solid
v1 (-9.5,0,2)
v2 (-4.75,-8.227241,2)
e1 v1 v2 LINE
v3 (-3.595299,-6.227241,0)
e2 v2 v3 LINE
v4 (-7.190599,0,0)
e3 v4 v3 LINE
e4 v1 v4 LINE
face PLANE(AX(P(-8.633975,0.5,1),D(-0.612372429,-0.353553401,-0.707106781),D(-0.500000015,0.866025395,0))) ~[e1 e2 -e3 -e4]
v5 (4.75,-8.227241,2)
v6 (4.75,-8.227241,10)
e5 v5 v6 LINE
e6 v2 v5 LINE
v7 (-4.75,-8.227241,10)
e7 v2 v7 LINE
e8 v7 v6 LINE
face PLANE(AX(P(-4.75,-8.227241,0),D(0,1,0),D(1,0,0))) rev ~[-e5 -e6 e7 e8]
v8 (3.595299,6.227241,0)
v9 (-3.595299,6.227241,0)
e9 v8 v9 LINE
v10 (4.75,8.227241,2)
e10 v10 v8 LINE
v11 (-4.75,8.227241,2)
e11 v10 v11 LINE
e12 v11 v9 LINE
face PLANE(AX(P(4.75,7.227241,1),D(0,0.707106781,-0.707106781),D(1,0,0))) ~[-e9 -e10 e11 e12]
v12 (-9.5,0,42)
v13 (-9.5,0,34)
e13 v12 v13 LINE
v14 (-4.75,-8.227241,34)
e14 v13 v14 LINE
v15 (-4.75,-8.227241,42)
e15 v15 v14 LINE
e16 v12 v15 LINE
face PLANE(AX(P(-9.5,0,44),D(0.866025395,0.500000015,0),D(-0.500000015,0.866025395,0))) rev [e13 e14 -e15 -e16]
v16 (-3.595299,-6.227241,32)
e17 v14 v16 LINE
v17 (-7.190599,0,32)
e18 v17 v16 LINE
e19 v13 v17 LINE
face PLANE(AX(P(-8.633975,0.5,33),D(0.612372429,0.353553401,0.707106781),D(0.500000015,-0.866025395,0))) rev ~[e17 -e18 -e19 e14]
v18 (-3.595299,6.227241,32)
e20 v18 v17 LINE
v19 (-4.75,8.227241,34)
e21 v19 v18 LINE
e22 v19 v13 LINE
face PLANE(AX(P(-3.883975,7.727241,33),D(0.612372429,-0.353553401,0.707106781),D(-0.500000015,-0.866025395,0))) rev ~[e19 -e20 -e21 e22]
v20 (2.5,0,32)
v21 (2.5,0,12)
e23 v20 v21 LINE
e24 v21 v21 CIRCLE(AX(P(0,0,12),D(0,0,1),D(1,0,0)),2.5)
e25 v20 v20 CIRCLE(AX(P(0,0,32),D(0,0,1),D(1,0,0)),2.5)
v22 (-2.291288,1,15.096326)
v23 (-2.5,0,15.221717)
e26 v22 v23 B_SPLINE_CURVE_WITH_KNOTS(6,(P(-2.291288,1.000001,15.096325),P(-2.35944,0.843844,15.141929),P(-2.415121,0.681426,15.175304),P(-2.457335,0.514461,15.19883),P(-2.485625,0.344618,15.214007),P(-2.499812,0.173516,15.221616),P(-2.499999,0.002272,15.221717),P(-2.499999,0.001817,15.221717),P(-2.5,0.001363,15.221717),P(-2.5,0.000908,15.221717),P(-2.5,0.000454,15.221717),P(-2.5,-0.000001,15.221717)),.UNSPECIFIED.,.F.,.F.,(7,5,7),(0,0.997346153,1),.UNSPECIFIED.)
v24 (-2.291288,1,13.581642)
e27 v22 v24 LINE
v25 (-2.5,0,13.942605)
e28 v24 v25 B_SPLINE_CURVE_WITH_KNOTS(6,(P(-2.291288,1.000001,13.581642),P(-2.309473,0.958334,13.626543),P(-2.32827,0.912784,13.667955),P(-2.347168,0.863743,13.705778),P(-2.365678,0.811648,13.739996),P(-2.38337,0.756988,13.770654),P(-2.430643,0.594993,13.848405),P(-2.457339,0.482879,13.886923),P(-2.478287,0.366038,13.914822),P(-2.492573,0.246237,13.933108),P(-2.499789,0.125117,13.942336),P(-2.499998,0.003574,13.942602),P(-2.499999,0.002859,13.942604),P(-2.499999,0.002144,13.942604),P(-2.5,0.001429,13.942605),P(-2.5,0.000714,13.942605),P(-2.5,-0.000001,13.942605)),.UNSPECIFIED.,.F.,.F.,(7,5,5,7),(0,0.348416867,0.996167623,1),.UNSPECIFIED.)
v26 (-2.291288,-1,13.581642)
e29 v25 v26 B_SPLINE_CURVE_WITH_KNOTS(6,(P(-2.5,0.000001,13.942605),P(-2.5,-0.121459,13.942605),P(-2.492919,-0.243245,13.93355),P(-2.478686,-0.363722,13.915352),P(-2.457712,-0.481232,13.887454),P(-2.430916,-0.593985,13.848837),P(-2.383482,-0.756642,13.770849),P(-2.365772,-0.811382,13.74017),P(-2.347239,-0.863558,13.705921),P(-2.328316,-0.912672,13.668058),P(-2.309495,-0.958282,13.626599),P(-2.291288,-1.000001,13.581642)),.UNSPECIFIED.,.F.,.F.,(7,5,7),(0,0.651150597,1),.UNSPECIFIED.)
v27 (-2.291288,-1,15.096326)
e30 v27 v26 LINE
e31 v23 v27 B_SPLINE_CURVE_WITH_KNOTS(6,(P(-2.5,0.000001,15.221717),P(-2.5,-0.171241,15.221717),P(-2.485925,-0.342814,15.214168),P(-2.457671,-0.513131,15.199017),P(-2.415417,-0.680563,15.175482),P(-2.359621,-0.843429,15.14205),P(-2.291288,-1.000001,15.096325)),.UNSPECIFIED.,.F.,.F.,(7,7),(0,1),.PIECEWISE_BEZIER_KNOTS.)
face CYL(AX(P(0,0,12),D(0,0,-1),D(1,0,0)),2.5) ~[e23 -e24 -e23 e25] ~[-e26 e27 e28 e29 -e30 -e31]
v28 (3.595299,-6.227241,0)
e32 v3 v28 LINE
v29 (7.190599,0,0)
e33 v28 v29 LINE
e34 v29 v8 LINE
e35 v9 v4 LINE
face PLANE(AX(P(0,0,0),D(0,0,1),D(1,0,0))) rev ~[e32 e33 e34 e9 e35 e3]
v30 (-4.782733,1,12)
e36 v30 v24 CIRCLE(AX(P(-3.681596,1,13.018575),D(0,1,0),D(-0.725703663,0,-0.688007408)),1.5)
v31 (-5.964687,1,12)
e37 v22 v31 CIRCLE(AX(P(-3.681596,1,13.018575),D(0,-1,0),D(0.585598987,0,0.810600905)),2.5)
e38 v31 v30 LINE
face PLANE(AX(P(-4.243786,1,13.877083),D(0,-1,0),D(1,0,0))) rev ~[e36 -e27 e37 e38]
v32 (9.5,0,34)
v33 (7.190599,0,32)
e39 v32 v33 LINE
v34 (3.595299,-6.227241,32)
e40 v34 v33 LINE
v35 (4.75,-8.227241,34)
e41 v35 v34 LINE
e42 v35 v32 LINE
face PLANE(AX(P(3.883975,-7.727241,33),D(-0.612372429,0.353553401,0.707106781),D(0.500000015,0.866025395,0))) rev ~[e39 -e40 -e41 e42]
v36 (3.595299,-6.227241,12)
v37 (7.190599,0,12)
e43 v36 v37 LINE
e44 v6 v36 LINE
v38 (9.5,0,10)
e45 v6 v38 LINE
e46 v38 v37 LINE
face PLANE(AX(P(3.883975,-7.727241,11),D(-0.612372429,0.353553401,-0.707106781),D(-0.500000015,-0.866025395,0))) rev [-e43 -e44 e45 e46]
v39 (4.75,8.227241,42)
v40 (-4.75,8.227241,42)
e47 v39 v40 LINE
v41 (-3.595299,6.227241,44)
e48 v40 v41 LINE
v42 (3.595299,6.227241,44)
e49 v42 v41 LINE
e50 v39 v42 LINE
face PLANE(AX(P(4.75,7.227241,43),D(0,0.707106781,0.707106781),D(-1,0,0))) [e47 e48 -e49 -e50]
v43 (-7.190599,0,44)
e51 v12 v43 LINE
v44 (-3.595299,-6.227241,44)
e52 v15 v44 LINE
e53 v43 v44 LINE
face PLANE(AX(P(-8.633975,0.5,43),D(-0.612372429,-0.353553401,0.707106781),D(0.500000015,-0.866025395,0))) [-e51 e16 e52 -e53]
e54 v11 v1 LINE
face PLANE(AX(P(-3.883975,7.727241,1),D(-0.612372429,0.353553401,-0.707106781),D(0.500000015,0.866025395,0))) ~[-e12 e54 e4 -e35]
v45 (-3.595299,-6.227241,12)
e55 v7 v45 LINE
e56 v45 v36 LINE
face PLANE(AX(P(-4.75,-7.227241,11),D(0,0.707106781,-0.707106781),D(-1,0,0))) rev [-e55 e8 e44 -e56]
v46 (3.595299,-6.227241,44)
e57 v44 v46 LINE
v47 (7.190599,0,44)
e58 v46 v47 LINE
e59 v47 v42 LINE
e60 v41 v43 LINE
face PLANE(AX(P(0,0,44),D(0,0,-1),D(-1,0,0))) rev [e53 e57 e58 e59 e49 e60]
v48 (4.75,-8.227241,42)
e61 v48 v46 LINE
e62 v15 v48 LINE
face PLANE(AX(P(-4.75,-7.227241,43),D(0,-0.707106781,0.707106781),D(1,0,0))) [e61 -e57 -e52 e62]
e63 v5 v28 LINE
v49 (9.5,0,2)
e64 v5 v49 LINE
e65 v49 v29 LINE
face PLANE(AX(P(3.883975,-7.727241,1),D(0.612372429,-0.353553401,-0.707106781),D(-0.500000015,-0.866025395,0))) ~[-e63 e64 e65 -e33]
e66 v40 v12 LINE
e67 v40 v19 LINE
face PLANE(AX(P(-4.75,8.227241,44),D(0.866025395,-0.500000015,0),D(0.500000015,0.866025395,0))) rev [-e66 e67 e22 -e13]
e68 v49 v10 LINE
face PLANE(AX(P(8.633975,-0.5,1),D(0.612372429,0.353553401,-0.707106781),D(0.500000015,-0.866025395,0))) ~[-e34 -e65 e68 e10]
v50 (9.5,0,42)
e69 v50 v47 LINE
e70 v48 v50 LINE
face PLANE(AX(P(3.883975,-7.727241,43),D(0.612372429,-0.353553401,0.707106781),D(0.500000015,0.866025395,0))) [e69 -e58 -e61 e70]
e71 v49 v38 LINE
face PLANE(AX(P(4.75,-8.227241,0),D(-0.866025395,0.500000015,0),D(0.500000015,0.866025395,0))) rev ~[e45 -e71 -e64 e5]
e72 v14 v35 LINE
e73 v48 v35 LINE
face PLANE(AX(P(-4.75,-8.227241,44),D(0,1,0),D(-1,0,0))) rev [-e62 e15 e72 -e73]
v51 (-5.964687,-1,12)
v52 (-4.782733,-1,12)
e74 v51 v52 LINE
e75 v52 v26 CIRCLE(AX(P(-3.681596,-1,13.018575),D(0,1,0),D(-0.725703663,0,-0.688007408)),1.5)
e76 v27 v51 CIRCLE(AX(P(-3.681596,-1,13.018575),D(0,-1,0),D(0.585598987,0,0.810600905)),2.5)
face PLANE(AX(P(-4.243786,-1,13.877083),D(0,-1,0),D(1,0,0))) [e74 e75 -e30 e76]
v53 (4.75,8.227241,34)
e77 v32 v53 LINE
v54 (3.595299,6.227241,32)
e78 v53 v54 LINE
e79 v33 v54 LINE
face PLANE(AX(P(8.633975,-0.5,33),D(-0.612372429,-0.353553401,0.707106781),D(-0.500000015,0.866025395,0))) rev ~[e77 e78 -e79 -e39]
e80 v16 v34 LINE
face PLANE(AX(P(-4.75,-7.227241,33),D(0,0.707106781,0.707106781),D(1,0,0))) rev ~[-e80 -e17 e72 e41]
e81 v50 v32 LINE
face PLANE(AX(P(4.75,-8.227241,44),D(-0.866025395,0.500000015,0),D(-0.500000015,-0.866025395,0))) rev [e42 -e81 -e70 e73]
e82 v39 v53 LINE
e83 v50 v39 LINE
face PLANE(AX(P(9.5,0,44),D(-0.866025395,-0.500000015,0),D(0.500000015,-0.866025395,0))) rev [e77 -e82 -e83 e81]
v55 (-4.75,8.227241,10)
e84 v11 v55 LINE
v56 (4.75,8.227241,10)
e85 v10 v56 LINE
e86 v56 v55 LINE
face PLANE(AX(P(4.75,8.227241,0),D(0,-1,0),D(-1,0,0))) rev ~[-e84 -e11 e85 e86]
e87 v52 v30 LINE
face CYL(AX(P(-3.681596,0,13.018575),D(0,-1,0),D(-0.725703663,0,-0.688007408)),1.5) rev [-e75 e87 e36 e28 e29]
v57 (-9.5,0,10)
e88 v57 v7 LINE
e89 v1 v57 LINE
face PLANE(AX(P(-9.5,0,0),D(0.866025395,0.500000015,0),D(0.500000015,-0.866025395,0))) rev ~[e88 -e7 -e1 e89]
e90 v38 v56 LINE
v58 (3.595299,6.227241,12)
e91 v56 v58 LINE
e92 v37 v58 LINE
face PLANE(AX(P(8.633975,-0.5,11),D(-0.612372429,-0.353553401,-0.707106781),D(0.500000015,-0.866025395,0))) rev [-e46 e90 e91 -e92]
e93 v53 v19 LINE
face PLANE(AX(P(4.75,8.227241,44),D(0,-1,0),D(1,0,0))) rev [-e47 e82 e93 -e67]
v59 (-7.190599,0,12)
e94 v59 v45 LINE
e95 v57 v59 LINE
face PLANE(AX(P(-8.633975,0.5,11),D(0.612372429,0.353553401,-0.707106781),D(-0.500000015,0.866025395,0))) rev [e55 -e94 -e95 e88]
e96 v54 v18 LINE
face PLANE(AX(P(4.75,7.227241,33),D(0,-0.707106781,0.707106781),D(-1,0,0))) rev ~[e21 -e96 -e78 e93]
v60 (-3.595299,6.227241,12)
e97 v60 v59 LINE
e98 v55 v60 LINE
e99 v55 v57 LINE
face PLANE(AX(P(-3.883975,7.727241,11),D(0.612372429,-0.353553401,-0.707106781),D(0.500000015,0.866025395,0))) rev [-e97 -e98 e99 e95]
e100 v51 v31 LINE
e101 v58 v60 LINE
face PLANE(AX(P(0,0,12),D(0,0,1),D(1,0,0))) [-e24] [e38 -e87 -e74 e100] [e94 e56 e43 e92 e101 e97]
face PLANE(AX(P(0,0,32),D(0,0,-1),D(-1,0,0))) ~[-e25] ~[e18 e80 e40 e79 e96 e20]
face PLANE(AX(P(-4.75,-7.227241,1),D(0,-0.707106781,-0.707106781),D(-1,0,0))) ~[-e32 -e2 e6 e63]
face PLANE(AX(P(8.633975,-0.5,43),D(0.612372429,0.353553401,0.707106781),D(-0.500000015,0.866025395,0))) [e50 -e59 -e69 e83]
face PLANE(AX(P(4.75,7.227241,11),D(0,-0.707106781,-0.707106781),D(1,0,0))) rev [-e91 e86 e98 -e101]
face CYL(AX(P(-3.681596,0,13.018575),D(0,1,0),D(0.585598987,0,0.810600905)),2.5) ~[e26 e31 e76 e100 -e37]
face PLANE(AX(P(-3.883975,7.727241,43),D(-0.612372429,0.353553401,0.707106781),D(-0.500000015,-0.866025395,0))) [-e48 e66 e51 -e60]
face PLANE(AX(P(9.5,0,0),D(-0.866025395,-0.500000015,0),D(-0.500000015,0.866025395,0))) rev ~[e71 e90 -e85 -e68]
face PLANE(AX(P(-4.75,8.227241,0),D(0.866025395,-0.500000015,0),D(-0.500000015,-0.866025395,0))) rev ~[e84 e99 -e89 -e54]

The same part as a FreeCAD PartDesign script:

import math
import FreeCAD as App
import Part
import Sketcher

V = App.Vector
Q = App.Units.Quantity


def edges_at(feature, points):
    """Names of the edges that pass closest to the given points."""
    edges = feature.Shape.Edges
    near = lambda p: min(range(len(edges)), key=lambda i: edges[i].distToShape(Part.Vertex(*p))[0])
    return sorted({f"Edge{near(p) + 1}" for p in points})


def add_polygon(sketch, points):
    """Adds a closed chain of lines whose ends are joined by coincident constraints."""
    first, n = sketch.GeometryCount, len(points)
    for a, b in zip(points, points[1:] + points[:1]):
        sketch.addGeometry(Part.LineSegment(App.Vector(*a, 0), App.Vector(*b, 0)), False)
    for i in range(n):
        sketch.addConstraint(Sketcher.Constraint("Coincident", first + i, 2, first + (i + 1) % n, 1))

doc = App.newDocument("Part")
body = doc.addObject("PartDesign::Body", "Body")

# Sketch on XY plane
sketch1 = doc.addObject("Sketcher::SketchObject", "Sketch")
body.addObject(sketch1)
sketch1.AttachmentSupport = (doc.XY_Plane, [""])
sketch1.MapMode = "FlatFace"
add_polygon(sketch1, [(-10, 0), (-5, -8), (5, -8), (10, 0), (5, 8), (-5, 8)])  # lines 0-5
sketch1.addConstraint([
    Sketcher.Constraint("Horizontal", 1),
    Sketcher.Constraint("Horizontal", 4),
    Sketcher.Constraint("Symmetric", 0, 2, 3, 2, -1, 1),
    Sketcher.Constraint("Symmetric", 2, 2, 5, 2, -1, 1),
    Sketcher.Constraint("PointOnObject", 2, 2, -1),
    Sketcher.Constraint("Parallel", 2, 5),
    Sketcher.Constraint("Vertical", 1, 2, 3, 2),
    Sketcher.Constraint("Angle", 0, Q("-59.999999 deg")),
    Sketcher.Constraint("DistanceX", 1, 1, 1, 2, Q("9.5 mm")),
    Sketcher.Constraint("DistanceX", 5, 2, 2, 2, Q("19 mm")),
])
pad1 = doc.addObject("PartDesign::Pad", "Pad")
body.addObject(pad1)
pad1.Profile = sketch1
pad1.Length = 12
doc.recompute()

chamfer = doc.addObject("PartDesign::Chamfer", "Chamfer")
body.addObject(chamfer)
chamfer.Base = (pad1, edges_at(pad1, [
    (-7.125, 4.114, 0),
    (-7.125, -4.114, 0),
    (0, -8.227, 0),
    (7.125, -4.114, 0),
    (7.125, 4.114, 0),
    (0, 8.227, 0),
    (-7.125, 4.114, 12),
    (-7.125, -4.114, 12),
    (0, -8.227, 12),
    (7.125, -4.114, 12),
    (7.125, 4.114, 12),
    (0, 8.227, 12),
]))
chamfer.Size = 2

# Sketch on XY plane
sketch2 = doc.addObject("Sketcher::SketchObject", "Sketch001")
body.addObject(sketch2)
sketch2.AttachmentSupport = (doc.XY_Plane, [""])
sketch2.MapMode = "FlatFace"
sketch2.AttachmentOffset = App.Placement(V(0, 0, 12), App.Rotation())
sketch2.addGeometry(Part.Circle(V(0, 0, 0), V(0, 0, 1), 2.5), False)
sketch2.addConstraint([
    Sketcher.Constraint("Coincident", 0, 3, -1, 1),
    Sketcher.Constraint("Diameter", 0, Q("5 mm")),
])
pad2 = doc.addObject("PartDesign::Pad", "Pad001")
body.addObject(pad2)
pad2.Profile = sketch2
pad2.Length = 10
body2 = doc.addObject("PartDesign::Body", "Body001")
doc.recompute()

body2.BaseFeature = body
doc.recompute()

mirroring = doc.addObject("Part::Mirroring", "Mirroring")
mirroring.Source = body
mirroring.Base = V(0, 0, 22)
mirroring.Normal = V(0, 0, 1)
body3 = doc.addObject("PartDesign::Body", "Body002")
body3.BaseFeature = mirroring
boolean = doc.addObject("PartDesign::Boolean", "Boolean")
body2.addObject(boolean)
boolean.Type = "Fuse"
boolean.addObjects([body3])
doc.recompute()

# Sketch on XZ plane
sketch3 = doc.addObject("Sketcher::SketchObject", "Sketch002")
body2.addObject(sketch3)
sketch3.AttachmentSupport = (doc.getObject("XZ_Plane001"), [""])
sketch3.MapMode = "FlatFace"
sketch3.addGeometry([
    Part.LineSegment(V(-2.2, 13.3, 0), V(-2.2, 15, 0)),
    Part.ArcOfCircle(Part.Circle(V(-3.7, 13, 0), V(0, 0, 1), 2.5), math.radians(54), math.radians(204)),
    Part.LineSegment(V(-6, 12, 0), V(-4.8, 12, 0)),
    Part.ArcOfCircle(Part.Circle(V(-3.7, 13, 0), V(0, 0, 1), 1.5), math.radians(13), math.radians(223)),
], False)
sketch3.addConstraint([
    Sketcher.Constraint("Coincident", 0, 2, 1, 1),
    Sketcher.Constraint("Coincident", 1, 2, 2, 1),
    Sketcher.Constraint("Coincident", 2, 2, 3, 2),
    Sketcher.Constraint("Coincident", 3, 1, 0, 1),
    Sketcher.Constraint("Vertical", 0),
    Sketcher.Constraint("Horizontal", 2),
    Sketcher.Constraint("Coincident", 3, 3, 1, 3),
    Sketcher.Constraint("Radius", 1, Q("2.5 mm")),
    Sketcher.Constraint("Radius", 3, Q("1.5 mm")),
    Sketcher.Constraint("DistanceX", 0, 2, -1, 1, Q("2.217598 mm")),
    Sketcher.Constraint("DistanceX", 2, 1, 2, 2, Q("1.188494 mm")),
    Sketcher.Constraint("DistanceY", 0, 1, 0, 2, Q("1.699836 mm")),
    Sketcher.Constraint("DistanceY", -1, 1, 3, 1, Q("13.345242 mm")),
])
pad3 = doc.addObject("PartDesign::Pad", "Pad002")
body2.addObject(pad3)
pad3.Profile = sketch3
pad3.Type = "TwoLengths"
pad3.Length = 1
pad3.Length2 = 1
mirroring.Visibility = False

doc.recompute()
